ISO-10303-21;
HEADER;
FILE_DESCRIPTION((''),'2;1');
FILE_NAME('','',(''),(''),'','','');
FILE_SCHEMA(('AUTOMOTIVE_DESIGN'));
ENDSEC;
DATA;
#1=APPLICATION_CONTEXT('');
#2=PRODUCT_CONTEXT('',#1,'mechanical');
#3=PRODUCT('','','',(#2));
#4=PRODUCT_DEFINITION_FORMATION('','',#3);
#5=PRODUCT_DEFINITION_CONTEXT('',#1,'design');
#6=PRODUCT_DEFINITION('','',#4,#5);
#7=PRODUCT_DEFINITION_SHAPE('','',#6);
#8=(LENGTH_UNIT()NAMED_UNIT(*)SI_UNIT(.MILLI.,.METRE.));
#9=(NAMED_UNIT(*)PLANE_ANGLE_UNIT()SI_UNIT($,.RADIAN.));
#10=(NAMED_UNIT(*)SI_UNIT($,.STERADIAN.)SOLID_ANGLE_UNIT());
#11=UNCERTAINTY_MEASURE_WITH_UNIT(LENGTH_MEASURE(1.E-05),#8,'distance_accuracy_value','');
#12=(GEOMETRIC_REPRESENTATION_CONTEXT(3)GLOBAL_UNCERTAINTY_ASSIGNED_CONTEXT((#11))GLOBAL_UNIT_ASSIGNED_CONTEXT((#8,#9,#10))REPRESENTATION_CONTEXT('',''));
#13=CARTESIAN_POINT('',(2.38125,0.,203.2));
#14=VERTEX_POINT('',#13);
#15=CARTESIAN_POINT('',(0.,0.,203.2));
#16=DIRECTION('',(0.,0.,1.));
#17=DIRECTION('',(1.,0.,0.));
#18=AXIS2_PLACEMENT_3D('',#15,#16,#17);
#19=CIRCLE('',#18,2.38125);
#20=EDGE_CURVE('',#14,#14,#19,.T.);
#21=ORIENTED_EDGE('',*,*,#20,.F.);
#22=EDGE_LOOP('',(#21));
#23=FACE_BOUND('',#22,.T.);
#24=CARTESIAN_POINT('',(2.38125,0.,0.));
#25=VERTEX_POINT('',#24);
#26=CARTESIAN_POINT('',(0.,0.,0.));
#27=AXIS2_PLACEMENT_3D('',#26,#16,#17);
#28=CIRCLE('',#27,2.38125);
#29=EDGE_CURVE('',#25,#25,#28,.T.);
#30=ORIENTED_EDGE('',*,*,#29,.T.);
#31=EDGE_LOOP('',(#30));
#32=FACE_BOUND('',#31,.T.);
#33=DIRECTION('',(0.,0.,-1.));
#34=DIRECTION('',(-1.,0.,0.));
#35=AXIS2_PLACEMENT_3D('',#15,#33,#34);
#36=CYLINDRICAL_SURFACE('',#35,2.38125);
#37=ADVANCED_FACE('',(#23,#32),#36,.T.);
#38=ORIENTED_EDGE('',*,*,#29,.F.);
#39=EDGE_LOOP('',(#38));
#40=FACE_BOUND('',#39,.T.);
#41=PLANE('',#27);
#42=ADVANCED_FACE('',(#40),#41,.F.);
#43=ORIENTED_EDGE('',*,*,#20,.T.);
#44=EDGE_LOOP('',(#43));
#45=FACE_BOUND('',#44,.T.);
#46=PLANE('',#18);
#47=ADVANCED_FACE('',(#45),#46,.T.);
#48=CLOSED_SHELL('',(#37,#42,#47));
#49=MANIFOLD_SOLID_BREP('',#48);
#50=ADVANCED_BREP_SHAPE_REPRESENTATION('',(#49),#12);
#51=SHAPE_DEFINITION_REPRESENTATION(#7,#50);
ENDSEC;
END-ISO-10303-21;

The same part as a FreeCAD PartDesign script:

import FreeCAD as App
import Part
import Sketcher
from FreeCAD import Vector
Q = App.Units.Quantity

doc = App.newDocument("Part")
body = doc.addObject("PartDesign::Body", "Body")

# Sketch on XY plane
sketch1 = doc.addObject("Sketcher::SketchObject", "Sketch")
body.addObject(sketch1)
sketch1.AttachmentSupport = (doc.XY_Plane, [""])
sketch1.MapMode = "FlatFace"
sketch1.addGeometry(Part.Circle(Vector(0, 0, 0), Vector(0, 0, 1), 2.4), False)
sketch1.addConstraint(Sketcher.Constraint("Coincident", 0, 3, -1, 1))
sketch1.addConstraint(Sketcher.Constraint("Diameter", 0, Q("0.1875 in")))
pad1 = doc.addObject("PartDesign::Pad", "Pad")
body.addObject(pad1)
pad1.Profile = sketch1
pad1.Length = Q("8 in")

doc.recompute()
